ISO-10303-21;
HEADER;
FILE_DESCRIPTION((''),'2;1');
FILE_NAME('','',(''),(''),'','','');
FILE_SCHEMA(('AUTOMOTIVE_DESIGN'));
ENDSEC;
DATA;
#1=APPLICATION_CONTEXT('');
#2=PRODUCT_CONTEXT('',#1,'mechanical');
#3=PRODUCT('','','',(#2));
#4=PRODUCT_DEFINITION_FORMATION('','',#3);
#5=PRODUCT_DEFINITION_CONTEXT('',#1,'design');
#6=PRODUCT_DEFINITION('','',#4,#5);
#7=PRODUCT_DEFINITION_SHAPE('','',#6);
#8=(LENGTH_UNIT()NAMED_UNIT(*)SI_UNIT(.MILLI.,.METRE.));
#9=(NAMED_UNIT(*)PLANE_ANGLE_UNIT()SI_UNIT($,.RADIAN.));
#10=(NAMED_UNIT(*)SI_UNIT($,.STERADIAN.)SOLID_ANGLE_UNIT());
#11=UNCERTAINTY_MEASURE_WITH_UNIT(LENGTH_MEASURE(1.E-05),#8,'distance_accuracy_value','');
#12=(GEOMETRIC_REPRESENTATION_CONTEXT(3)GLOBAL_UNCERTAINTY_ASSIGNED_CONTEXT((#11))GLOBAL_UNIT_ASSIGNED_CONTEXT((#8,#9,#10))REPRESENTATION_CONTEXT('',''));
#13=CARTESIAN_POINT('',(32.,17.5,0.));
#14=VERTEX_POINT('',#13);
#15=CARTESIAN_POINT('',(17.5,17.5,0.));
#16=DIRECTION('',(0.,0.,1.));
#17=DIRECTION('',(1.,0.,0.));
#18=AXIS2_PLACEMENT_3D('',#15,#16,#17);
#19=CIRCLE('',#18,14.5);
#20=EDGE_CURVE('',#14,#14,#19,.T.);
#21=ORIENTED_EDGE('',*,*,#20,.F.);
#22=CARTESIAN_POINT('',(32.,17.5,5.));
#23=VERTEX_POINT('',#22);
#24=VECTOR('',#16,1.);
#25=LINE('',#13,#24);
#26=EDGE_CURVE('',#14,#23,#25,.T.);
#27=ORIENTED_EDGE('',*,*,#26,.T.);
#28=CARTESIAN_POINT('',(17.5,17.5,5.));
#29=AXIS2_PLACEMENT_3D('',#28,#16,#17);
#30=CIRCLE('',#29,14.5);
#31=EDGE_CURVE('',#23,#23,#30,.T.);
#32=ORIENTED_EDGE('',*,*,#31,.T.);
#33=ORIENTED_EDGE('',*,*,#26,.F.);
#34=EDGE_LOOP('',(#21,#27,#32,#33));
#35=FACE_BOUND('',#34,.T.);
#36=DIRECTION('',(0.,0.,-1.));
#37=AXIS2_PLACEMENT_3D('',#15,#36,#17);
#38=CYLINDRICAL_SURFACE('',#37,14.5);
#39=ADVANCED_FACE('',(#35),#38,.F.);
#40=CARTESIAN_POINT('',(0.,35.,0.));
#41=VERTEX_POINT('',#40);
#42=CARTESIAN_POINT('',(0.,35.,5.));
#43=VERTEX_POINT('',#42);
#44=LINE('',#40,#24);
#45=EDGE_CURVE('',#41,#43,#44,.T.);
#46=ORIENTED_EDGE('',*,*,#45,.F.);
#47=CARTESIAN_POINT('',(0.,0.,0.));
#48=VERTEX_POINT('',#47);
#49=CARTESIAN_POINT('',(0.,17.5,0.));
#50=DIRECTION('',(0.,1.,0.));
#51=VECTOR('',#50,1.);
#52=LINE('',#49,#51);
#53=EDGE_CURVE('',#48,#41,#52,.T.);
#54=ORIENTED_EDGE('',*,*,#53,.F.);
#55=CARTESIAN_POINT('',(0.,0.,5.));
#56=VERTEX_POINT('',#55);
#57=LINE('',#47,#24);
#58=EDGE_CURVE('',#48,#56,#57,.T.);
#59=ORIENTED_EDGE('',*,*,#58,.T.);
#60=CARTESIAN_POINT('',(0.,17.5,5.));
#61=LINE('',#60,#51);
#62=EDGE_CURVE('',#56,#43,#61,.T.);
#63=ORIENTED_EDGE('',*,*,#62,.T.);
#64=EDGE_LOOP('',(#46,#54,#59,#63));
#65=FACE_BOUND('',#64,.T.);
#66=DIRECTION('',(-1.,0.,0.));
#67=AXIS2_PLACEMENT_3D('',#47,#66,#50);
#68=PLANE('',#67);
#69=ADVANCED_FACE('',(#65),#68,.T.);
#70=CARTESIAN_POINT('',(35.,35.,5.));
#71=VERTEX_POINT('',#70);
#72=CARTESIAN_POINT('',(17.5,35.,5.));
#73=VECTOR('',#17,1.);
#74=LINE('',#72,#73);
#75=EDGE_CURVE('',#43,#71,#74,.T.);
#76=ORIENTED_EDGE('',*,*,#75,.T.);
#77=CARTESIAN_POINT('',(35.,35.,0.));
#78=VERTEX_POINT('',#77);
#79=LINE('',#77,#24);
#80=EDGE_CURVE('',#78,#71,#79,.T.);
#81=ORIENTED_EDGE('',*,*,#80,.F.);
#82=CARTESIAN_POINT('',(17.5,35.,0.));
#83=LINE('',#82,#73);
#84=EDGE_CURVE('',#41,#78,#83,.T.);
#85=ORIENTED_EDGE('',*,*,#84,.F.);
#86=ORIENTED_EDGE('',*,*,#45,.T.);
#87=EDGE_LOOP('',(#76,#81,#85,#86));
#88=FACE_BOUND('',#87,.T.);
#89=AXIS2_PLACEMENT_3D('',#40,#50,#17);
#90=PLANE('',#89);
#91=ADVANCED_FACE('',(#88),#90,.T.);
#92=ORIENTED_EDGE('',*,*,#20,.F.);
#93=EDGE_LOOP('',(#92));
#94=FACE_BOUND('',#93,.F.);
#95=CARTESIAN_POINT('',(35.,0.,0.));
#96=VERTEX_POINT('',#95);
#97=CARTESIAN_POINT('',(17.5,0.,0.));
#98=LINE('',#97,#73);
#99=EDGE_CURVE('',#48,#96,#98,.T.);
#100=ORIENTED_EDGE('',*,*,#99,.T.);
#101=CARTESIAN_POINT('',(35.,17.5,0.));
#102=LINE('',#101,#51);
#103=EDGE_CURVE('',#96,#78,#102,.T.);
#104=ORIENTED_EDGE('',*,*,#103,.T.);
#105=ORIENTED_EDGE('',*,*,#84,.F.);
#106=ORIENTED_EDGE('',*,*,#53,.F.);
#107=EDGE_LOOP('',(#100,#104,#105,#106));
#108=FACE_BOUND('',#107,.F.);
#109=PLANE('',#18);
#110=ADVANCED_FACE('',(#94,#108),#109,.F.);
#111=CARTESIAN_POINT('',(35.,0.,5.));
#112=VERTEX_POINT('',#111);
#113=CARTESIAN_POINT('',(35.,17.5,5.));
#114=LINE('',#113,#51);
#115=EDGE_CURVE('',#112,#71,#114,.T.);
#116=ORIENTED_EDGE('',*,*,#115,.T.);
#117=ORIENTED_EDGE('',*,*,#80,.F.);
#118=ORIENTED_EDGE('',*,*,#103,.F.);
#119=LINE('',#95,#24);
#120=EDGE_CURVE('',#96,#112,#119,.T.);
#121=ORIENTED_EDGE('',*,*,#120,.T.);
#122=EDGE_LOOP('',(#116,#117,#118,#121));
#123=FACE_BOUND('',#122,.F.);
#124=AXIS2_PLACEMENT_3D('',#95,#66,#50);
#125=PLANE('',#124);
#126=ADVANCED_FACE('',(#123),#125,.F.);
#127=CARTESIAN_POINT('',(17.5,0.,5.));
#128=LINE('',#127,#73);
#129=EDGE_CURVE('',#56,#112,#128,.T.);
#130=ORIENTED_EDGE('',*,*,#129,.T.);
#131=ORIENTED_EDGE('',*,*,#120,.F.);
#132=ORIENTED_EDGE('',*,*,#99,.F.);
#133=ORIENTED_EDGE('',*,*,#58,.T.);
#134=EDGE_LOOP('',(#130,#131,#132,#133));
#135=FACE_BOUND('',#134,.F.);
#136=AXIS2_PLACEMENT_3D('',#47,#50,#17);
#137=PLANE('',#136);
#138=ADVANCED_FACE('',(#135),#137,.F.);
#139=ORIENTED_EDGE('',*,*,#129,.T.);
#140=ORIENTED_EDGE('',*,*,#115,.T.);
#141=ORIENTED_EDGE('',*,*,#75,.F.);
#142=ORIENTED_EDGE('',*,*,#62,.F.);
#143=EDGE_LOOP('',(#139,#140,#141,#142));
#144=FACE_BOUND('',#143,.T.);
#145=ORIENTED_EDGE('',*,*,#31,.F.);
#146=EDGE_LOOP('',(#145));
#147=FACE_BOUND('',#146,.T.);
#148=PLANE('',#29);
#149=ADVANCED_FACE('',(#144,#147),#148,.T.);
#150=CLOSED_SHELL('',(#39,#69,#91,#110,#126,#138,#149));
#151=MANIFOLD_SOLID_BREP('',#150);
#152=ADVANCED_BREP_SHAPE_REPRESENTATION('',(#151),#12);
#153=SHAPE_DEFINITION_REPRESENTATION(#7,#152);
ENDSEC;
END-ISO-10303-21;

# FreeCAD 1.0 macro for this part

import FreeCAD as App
import Part
import Sketcher
from FreeCAD import Vector

doc = App.newDocument("Part")
body = doc.addObject("PartDesign::Body", "Body")

sketch1 = body.newObject("Sketcher::SketchObject", "Sketch")
sketch1.AttachmentSupport = (doc.getObject("XY_Plane"), [""])
sketch1.MapMode = "FlatFace"
sketch1.addGeometry([
    Part.LineSegment(Vector(0, 35, 0), Vector(0, 0, 0)),
    Part.LineSegment(Vector(0, 0, 0), Vector(35, 0, 0)),
    Part.LineSegment(Vector(35, 0, 0), Vector(35, 35, 0)),
    Part.LineSegment(Vector(35, 35, 0), Vector(0, 35, 0)),
    Part.Circle(Vector(18, 18, 0), Vector(0, 0, 1), 14),
], False)
sketch1.addConstraint([
    Sketcher.Constraint("Coincident", 0, 2, 1, 1),
    Sketcher.Constraint("Coincident", 1, 2, 2, 1),
    Sketcher.Constraint("Coincident", 2, 2, 3, 1),
    Sketcher.Constraint("Coincident", 3, 2, 0, 1),
    Sketcher.Constraint("Vertical", 0),
    Sketcher.Constraint("Horizontal", 1),
    Sketcher.Constraint("Vertical", 2),
    Sketcher.Constraint("Horizontal", 3),
    Sketcher.Constraint("Coincident", 0, 2, -1, 1),
    Sketcher.Constraint("Equal", 3, 0),
    Sketcher.Constraint("Diameter", 4, 29.0),
    Sketcher.Constraint("DistanceX", 1, 1, 1, 2, 35.0),
    Sketcher.Constraint("DistanceX", -1, 1, 4, 3, 17.5),
    Sketcher.Constraint("DistanceY", -1, 1, 4, 3, 17.5),
])
pad1 = body.newObject("PartDesign::Pad", "Pad")
pad1.Profile = sketch1
pad1.Length = 5

doc.recompute()
